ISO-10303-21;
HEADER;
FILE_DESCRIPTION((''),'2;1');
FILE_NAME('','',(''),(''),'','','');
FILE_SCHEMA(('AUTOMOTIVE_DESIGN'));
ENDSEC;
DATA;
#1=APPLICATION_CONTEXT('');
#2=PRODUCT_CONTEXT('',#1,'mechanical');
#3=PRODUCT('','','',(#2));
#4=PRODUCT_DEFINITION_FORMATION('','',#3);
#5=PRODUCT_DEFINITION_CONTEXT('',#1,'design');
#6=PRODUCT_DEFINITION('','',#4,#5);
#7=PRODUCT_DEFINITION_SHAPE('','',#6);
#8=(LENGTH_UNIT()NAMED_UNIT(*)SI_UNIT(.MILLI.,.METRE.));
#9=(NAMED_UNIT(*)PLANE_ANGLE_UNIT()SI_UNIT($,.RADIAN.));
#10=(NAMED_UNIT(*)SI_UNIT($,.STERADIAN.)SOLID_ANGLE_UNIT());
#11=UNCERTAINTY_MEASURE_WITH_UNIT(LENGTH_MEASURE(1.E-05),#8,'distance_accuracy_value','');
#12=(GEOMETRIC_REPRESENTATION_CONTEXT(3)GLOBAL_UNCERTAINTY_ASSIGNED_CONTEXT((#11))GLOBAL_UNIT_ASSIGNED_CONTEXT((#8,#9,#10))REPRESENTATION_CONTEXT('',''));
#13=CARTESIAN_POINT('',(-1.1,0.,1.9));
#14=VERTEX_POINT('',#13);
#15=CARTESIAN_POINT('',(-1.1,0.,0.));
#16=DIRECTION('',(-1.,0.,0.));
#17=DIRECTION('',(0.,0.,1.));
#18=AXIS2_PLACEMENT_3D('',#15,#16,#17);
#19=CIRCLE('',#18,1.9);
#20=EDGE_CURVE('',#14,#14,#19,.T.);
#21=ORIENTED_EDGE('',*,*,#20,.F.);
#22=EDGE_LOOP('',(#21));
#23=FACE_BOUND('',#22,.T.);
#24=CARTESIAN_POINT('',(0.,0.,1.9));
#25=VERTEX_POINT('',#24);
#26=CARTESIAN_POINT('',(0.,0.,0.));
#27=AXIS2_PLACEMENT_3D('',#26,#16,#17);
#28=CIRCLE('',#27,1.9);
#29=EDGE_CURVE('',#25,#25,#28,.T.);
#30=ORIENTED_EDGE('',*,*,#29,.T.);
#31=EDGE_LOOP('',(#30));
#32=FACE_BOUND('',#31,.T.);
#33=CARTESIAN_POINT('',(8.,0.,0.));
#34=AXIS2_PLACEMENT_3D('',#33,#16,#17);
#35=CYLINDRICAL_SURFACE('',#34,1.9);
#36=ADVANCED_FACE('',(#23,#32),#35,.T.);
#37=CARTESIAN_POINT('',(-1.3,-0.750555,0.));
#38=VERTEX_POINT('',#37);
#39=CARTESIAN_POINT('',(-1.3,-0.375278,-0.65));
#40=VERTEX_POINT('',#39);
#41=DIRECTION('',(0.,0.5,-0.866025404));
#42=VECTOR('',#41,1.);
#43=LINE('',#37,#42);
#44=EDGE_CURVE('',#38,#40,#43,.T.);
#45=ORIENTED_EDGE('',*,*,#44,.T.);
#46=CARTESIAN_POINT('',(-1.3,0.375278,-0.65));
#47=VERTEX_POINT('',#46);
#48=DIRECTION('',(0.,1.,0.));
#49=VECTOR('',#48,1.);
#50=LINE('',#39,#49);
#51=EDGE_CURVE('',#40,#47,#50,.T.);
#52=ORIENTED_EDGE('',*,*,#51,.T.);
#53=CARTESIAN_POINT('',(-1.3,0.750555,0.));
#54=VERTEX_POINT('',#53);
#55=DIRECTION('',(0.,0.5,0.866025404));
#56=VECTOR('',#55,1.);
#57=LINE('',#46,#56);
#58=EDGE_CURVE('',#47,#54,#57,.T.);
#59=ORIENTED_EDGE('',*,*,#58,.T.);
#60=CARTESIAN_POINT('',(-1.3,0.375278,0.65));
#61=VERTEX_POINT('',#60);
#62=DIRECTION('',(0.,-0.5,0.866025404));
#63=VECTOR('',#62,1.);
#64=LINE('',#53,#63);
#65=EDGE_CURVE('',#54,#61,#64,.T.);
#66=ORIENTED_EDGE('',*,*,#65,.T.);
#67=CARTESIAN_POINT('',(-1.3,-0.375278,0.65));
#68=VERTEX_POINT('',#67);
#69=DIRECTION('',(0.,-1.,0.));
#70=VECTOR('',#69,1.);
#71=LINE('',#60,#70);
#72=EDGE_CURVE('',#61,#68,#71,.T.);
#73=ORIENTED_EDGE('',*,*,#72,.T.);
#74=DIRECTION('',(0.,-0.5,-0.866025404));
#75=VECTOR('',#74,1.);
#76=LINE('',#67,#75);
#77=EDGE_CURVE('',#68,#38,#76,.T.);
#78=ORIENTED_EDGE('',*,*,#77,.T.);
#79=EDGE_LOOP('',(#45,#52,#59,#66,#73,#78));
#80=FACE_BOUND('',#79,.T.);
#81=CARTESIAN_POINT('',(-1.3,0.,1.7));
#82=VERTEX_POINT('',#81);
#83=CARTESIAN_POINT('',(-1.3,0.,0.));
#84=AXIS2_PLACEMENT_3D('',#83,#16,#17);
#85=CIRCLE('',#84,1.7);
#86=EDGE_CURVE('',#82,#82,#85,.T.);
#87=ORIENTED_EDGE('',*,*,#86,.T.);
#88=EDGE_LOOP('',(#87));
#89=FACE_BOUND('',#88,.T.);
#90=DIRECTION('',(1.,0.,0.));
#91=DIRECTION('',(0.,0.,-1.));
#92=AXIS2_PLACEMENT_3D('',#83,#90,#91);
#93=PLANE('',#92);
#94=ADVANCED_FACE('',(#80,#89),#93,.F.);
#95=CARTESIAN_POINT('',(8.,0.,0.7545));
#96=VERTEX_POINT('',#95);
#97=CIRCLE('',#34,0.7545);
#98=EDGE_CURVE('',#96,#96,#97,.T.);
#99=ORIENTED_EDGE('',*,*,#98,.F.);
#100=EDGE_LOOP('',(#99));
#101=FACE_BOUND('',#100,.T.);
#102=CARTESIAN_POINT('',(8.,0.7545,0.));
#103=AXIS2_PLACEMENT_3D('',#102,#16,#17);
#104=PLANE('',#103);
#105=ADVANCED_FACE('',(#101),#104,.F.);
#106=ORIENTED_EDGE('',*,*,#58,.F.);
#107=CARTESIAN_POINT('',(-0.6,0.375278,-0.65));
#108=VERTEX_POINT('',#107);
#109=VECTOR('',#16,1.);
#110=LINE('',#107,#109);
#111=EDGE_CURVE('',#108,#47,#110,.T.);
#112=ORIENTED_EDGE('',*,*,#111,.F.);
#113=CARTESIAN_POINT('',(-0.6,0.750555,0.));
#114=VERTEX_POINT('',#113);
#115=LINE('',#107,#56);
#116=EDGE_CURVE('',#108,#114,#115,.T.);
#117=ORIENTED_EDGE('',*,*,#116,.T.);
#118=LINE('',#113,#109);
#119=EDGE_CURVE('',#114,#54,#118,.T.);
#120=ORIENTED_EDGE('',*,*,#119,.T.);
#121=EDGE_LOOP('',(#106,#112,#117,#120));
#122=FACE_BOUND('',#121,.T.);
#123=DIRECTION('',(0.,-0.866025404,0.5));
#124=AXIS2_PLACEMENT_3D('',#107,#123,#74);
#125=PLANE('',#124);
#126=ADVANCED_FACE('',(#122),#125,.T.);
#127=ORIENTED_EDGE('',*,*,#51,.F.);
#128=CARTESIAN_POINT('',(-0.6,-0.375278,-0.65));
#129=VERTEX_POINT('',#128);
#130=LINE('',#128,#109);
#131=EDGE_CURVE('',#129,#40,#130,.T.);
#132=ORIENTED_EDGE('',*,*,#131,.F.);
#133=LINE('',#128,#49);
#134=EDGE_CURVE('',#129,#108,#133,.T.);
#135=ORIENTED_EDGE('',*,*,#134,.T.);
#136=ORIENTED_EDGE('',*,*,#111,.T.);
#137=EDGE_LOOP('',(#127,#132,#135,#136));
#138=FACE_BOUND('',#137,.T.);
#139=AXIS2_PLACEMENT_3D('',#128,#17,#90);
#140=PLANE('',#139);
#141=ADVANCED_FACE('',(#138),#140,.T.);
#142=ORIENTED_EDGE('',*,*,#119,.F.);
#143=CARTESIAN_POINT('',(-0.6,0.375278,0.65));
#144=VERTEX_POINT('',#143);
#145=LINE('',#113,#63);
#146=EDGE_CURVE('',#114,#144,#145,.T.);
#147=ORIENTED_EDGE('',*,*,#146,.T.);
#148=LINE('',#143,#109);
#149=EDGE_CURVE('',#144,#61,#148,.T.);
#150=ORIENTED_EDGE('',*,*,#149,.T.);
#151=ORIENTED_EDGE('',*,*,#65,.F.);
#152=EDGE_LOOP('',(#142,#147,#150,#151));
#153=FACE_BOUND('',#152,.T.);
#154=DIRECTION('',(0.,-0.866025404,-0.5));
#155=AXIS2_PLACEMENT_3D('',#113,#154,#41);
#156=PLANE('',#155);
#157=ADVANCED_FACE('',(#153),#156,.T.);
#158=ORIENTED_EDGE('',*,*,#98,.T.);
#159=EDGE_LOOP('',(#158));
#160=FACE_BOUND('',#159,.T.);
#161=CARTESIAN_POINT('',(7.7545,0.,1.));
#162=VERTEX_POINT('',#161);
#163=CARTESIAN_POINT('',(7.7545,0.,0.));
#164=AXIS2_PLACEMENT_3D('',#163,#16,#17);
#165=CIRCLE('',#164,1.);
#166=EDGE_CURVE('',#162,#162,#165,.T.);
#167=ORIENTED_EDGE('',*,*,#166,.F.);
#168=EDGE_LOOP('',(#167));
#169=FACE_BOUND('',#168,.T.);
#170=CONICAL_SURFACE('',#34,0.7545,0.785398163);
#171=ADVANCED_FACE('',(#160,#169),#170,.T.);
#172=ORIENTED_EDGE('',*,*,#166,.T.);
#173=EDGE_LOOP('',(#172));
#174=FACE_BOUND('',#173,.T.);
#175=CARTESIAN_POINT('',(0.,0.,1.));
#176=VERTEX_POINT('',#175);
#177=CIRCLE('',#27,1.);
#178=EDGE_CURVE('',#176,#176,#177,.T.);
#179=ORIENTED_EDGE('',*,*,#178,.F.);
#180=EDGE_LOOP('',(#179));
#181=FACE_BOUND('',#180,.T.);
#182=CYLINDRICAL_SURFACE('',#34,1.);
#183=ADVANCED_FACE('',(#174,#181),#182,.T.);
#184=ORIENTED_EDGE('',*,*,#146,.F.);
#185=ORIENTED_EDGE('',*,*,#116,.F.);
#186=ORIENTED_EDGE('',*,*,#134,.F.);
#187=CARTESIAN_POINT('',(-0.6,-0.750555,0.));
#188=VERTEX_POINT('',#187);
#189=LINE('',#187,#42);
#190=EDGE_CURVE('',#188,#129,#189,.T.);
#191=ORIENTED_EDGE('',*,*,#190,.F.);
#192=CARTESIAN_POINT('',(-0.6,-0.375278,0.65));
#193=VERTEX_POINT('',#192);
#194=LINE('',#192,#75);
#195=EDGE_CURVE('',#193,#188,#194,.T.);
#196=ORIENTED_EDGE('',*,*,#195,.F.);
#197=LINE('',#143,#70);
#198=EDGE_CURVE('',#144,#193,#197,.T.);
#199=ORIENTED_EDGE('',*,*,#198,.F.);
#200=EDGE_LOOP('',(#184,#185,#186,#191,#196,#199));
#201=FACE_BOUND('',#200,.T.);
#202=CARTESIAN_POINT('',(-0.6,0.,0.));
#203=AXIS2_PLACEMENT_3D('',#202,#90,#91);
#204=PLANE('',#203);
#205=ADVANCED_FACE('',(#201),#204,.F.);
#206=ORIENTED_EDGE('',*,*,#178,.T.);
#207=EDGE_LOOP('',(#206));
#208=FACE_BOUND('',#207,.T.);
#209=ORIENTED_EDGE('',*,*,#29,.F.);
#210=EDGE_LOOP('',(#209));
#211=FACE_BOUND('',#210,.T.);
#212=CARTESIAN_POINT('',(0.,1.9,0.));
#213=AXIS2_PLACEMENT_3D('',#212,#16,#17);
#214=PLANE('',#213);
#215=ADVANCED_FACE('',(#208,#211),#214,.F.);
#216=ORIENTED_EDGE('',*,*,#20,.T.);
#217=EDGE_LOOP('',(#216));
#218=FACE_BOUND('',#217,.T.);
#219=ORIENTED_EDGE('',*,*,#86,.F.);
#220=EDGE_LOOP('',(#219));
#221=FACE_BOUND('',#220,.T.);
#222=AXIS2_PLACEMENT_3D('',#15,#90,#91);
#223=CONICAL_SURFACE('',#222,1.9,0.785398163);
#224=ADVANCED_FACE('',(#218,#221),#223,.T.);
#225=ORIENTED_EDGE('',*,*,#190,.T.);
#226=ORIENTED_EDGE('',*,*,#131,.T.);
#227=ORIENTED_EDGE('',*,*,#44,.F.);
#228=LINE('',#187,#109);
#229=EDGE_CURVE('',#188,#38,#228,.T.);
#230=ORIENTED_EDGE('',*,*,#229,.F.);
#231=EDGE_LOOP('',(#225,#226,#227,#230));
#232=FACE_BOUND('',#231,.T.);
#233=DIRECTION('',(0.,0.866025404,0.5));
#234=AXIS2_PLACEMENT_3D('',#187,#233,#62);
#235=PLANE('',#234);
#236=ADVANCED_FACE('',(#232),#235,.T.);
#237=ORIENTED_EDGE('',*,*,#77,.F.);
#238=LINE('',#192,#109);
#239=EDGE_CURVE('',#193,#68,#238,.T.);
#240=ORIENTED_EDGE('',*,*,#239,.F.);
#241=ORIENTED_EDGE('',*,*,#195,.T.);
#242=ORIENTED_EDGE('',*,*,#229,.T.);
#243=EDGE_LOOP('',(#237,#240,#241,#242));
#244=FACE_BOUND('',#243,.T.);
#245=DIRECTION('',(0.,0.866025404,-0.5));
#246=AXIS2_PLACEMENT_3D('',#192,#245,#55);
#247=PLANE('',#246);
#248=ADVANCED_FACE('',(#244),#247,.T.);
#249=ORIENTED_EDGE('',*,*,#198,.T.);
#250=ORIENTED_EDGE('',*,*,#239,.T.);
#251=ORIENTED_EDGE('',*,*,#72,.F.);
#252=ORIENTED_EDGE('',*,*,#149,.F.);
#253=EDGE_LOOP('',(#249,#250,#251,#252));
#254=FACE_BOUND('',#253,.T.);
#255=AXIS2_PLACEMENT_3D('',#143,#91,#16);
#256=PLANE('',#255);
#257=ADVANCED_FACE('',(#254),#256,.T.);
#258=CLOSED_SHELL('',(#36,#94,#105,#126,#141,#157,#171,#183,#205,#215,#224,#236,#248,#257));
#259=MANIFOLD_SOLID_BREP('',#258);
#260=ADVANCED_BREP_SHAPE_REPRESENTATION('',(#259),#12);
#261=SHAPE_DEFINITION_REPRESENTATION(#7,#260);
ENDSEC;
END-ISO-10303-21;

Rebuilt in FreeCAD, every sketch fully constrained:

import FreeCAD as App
import Part
import Sketcher
Q = App.Units.Quantity

doc = App.newDocument("Part")
params = doc.addObject("Spreadsheet::Sheet", "Params")
for row, (alias, value) in enumerate([
    ("sketch1_width", "9.3 mm"),
    ("sketch1_width2", "1.1 mm"),
    ("sketch1_height", "1.7 mm"),
    ("sketch1_height2", "0.9 mm"),
    ("revolution_angle", "360 deg"),
    ("pocket1_length", "0.7 mm"),
], start=1):
    params.set(f"A{row}", alias)
    params.set(f"B{row}", "=" + value)
    params.setAlias(f"B{row}", alias)

body = doc.addObject("PartDesign::Body", "Body")

# Sketch on XY plane
sketch1 = doc.addObject("Sketcher::SketchObject", "Sketch")
body.addObject(sketch1)
sketch1.AttachmentSupport = (doc.XY_Plane, [""])
sketch1.MapMode = "FlatFace"
sketch1.addGeometry([
    Part.LineSegment(App.Vector(-1.3, 1.7, 0), App.Vector(-1.3, 0, 0)),  # 0
    Part.LineSegment(App.Vector(-1.3, 0, 0), App.Vector(8, 0, 0)),  # 1
    Part.LineSegment(App.Vector(8, 0, 0), App.Vector(8, 0.75, 0)),  # 2
    Part.LineSegment(App.Vector(8, 0.75, 0), App.Vector(7.75, 1, 0)),  # 3
    Part.LineSegment(App.Vector(7.75, 1, 0), App.Vector(0, 1, 0)),  # 4
    Part.LineSegment(App.Vector(0, 1, 0), App.Vector(0, 1.9, 0)),  # 5
    Part.LineSegment(App.Vector(0, 1.9, 0), App.Vector(-1.1, 1.9, 0)),  # 6
    Part.LineSegment(App.Vector(-1.1, 1.9, 0), App.Vector(-1.3, 1.7, 0)),  # 7
], False)
sketch1.addConstraint([
    Sketcher.Constraint("Coincident", 0, 2, 1, 1),
    Sketcher.Constraint("Coincident", 1, 2, 2, 1),
    Sketcher.Constraint("Coincident", 2, 2, 3, 1),
    Sketcher.Constraint("Coincident", 3, 2, 4, 1),
    Sketcher.Constraint("Coincident", 4, 2, 5, 1),
    Sketcher.Constraint("Coincident", 5, 2, 6, 1),
    Sketcher.Constraint("Coincident", 6, 2, 7, 1),
    Sketcher.Constraint("Coincident", 7, 2, 0, 1),
    Sketcher.Constraint("Vertical", 0),
    Sketcher.Constraint("Horizontal", 1),
    Sketcher.Constraint("Vertical", 2),
    Sketcher.Constraint("Horizontal", 4),
    Sketcher.Constraint("Vertical", 5),
    Sketcher.Constraint("Horizontal", 6),
    Sketcher.Constraint("PointOnObject", 0, 2, -1),
    Sketcher.Constraint("PointOnObject", 4, 2, -2),
    Sketcher.Constraint("Perpendicular", 3, 7),
    Sketcher.Constraint("Angle", 3, Q("135 deg")),
    Sketcher.Constraint("DistanceX", 1, 1, 1, 2, 9.3),
    Sketcher.Constraint("DistanceX", 6, 2, 6, 1, 1.1),
    Sketcher.Constraint("DistanceY", 0, 2, 0, 1, 1.7),
    Sketcher.Constraint("DistanceY", 5, 1, 5, 2, 0.9),
    Sketcher.Constraint("DistanceX", -1, 1, 1, 2, 8.0),
    Sketcher.Constraint("DistanceX", 4, 2, 4, 1, 7.7545),
])
sketch1.setExpression("Constraints[18]", "Params.sketch1_width")
sketch1.setExpression("Constraints[19]", "Params.sketch1_width2")
sketch1.setExpression("Constraints[20]", "Params.sketch1_height")
sketch1.setExpression("Constraints[21]", "Params.sketch1_height2")
revolution = doc.addObject("PartDesign::Revolution", "Revolution")
body.addObject(revolution)
revolution.Profile = sketch1
revolution.ReferenceAxis = (sketch1, ["H_Axis"])
revolution.setExpression("Angle", "Params.revolution_angle")

# Sketch on YZ plane
sketch2 = doc.addObject("Sketcher::SketchObject", "Sketch001")
body.addObject(sketch2)
sketch2.AttachmentSupport = (doc.YZ_Plane, [""])
sketch2.MapMode = "FlatFace"
sketch2.AttachmentOffset = App.Placement(App.Vector(0, 0, -1.3), App.Rotation())
sketch2.addGeometry([
    Part.LineSegment(App.Vector(-0.4, 0.7, 0), App.Vector(-0.8, 0, 0)),  # 0
    Part.LineSegment(App.Vector(-0.8, 0, 0), App.Vector(-0.4, -0.7, 0)),  # 1
    Part.LineSegment(App.Vector(-0.4, -0.7, 0), App.Vector(0.4, -0.7, 0)),  # 2
    Part.LineSegment(App.Vector(0.4, -0.7, 0), App.Vector(0.8, 0, 0)),  # 3
    Part.LineSegment(App.Vector(0.8, 0, 0), App.Vector(0.4, 0.7, 0)),  # 4
    Part.LineSegment(App.Vector(0.4, 0.7, 0), App.Vector(-0.4, 0.7, 0)),  # 5
], False)
sketch2.addConstraint([
    Sketcher.Constraint("Coincident", 0, 2, 1, 1),
    Sketcher.Constraint("Coincident", 1, 2, 2, 1),
    Sketcher.Constraint("Coincident", 2, 2, 3, 1),
    Sketcher.Constraint("Coincident", 3, 2, 4, 1),
    Sketcher.Constraint("Coincident", 4, 2, 5, 1),
    Sketcher.Constraint("Coincident", 5, 2, 0, 1),
    Sketcher.Constraint("Horizontal", 2),
    Sketcher.Constraint("Horizontal", 5),
    Sketcher.Constraint("Symmetric", 0, 2, 3, 2, -1, 1),
    Sketcher.Constraint("Symmetric", 1, 2, 4, 2, -1, 1),
    Sketcher.Constraint("PointOnObject", 0, 2, -1),
    Sketcher.Constraint("Parallel", 0, 3),
    Sketcher.Constraint("Vertical", 2, 2, 4, 2),
    Sketcher.Constraint("Angle", 0, Q("-120 deg")),
    Sketcher.Constraint("DistanceY", 2, 2, 4, 2, 1.3),
    Sketcher.Constraint("DistanceX", 2, 1, 2, 2, 0.750555),
])
pocket1 = doc.addObject("PartDesign::Pocket", "Pocket")
body.addObject(pocket1)
pocket1.Profile = sketch2
pocket1.setExpression("Length", "Params.pocket1_length")
pocket1.Reversed = True

doc.recompute()
